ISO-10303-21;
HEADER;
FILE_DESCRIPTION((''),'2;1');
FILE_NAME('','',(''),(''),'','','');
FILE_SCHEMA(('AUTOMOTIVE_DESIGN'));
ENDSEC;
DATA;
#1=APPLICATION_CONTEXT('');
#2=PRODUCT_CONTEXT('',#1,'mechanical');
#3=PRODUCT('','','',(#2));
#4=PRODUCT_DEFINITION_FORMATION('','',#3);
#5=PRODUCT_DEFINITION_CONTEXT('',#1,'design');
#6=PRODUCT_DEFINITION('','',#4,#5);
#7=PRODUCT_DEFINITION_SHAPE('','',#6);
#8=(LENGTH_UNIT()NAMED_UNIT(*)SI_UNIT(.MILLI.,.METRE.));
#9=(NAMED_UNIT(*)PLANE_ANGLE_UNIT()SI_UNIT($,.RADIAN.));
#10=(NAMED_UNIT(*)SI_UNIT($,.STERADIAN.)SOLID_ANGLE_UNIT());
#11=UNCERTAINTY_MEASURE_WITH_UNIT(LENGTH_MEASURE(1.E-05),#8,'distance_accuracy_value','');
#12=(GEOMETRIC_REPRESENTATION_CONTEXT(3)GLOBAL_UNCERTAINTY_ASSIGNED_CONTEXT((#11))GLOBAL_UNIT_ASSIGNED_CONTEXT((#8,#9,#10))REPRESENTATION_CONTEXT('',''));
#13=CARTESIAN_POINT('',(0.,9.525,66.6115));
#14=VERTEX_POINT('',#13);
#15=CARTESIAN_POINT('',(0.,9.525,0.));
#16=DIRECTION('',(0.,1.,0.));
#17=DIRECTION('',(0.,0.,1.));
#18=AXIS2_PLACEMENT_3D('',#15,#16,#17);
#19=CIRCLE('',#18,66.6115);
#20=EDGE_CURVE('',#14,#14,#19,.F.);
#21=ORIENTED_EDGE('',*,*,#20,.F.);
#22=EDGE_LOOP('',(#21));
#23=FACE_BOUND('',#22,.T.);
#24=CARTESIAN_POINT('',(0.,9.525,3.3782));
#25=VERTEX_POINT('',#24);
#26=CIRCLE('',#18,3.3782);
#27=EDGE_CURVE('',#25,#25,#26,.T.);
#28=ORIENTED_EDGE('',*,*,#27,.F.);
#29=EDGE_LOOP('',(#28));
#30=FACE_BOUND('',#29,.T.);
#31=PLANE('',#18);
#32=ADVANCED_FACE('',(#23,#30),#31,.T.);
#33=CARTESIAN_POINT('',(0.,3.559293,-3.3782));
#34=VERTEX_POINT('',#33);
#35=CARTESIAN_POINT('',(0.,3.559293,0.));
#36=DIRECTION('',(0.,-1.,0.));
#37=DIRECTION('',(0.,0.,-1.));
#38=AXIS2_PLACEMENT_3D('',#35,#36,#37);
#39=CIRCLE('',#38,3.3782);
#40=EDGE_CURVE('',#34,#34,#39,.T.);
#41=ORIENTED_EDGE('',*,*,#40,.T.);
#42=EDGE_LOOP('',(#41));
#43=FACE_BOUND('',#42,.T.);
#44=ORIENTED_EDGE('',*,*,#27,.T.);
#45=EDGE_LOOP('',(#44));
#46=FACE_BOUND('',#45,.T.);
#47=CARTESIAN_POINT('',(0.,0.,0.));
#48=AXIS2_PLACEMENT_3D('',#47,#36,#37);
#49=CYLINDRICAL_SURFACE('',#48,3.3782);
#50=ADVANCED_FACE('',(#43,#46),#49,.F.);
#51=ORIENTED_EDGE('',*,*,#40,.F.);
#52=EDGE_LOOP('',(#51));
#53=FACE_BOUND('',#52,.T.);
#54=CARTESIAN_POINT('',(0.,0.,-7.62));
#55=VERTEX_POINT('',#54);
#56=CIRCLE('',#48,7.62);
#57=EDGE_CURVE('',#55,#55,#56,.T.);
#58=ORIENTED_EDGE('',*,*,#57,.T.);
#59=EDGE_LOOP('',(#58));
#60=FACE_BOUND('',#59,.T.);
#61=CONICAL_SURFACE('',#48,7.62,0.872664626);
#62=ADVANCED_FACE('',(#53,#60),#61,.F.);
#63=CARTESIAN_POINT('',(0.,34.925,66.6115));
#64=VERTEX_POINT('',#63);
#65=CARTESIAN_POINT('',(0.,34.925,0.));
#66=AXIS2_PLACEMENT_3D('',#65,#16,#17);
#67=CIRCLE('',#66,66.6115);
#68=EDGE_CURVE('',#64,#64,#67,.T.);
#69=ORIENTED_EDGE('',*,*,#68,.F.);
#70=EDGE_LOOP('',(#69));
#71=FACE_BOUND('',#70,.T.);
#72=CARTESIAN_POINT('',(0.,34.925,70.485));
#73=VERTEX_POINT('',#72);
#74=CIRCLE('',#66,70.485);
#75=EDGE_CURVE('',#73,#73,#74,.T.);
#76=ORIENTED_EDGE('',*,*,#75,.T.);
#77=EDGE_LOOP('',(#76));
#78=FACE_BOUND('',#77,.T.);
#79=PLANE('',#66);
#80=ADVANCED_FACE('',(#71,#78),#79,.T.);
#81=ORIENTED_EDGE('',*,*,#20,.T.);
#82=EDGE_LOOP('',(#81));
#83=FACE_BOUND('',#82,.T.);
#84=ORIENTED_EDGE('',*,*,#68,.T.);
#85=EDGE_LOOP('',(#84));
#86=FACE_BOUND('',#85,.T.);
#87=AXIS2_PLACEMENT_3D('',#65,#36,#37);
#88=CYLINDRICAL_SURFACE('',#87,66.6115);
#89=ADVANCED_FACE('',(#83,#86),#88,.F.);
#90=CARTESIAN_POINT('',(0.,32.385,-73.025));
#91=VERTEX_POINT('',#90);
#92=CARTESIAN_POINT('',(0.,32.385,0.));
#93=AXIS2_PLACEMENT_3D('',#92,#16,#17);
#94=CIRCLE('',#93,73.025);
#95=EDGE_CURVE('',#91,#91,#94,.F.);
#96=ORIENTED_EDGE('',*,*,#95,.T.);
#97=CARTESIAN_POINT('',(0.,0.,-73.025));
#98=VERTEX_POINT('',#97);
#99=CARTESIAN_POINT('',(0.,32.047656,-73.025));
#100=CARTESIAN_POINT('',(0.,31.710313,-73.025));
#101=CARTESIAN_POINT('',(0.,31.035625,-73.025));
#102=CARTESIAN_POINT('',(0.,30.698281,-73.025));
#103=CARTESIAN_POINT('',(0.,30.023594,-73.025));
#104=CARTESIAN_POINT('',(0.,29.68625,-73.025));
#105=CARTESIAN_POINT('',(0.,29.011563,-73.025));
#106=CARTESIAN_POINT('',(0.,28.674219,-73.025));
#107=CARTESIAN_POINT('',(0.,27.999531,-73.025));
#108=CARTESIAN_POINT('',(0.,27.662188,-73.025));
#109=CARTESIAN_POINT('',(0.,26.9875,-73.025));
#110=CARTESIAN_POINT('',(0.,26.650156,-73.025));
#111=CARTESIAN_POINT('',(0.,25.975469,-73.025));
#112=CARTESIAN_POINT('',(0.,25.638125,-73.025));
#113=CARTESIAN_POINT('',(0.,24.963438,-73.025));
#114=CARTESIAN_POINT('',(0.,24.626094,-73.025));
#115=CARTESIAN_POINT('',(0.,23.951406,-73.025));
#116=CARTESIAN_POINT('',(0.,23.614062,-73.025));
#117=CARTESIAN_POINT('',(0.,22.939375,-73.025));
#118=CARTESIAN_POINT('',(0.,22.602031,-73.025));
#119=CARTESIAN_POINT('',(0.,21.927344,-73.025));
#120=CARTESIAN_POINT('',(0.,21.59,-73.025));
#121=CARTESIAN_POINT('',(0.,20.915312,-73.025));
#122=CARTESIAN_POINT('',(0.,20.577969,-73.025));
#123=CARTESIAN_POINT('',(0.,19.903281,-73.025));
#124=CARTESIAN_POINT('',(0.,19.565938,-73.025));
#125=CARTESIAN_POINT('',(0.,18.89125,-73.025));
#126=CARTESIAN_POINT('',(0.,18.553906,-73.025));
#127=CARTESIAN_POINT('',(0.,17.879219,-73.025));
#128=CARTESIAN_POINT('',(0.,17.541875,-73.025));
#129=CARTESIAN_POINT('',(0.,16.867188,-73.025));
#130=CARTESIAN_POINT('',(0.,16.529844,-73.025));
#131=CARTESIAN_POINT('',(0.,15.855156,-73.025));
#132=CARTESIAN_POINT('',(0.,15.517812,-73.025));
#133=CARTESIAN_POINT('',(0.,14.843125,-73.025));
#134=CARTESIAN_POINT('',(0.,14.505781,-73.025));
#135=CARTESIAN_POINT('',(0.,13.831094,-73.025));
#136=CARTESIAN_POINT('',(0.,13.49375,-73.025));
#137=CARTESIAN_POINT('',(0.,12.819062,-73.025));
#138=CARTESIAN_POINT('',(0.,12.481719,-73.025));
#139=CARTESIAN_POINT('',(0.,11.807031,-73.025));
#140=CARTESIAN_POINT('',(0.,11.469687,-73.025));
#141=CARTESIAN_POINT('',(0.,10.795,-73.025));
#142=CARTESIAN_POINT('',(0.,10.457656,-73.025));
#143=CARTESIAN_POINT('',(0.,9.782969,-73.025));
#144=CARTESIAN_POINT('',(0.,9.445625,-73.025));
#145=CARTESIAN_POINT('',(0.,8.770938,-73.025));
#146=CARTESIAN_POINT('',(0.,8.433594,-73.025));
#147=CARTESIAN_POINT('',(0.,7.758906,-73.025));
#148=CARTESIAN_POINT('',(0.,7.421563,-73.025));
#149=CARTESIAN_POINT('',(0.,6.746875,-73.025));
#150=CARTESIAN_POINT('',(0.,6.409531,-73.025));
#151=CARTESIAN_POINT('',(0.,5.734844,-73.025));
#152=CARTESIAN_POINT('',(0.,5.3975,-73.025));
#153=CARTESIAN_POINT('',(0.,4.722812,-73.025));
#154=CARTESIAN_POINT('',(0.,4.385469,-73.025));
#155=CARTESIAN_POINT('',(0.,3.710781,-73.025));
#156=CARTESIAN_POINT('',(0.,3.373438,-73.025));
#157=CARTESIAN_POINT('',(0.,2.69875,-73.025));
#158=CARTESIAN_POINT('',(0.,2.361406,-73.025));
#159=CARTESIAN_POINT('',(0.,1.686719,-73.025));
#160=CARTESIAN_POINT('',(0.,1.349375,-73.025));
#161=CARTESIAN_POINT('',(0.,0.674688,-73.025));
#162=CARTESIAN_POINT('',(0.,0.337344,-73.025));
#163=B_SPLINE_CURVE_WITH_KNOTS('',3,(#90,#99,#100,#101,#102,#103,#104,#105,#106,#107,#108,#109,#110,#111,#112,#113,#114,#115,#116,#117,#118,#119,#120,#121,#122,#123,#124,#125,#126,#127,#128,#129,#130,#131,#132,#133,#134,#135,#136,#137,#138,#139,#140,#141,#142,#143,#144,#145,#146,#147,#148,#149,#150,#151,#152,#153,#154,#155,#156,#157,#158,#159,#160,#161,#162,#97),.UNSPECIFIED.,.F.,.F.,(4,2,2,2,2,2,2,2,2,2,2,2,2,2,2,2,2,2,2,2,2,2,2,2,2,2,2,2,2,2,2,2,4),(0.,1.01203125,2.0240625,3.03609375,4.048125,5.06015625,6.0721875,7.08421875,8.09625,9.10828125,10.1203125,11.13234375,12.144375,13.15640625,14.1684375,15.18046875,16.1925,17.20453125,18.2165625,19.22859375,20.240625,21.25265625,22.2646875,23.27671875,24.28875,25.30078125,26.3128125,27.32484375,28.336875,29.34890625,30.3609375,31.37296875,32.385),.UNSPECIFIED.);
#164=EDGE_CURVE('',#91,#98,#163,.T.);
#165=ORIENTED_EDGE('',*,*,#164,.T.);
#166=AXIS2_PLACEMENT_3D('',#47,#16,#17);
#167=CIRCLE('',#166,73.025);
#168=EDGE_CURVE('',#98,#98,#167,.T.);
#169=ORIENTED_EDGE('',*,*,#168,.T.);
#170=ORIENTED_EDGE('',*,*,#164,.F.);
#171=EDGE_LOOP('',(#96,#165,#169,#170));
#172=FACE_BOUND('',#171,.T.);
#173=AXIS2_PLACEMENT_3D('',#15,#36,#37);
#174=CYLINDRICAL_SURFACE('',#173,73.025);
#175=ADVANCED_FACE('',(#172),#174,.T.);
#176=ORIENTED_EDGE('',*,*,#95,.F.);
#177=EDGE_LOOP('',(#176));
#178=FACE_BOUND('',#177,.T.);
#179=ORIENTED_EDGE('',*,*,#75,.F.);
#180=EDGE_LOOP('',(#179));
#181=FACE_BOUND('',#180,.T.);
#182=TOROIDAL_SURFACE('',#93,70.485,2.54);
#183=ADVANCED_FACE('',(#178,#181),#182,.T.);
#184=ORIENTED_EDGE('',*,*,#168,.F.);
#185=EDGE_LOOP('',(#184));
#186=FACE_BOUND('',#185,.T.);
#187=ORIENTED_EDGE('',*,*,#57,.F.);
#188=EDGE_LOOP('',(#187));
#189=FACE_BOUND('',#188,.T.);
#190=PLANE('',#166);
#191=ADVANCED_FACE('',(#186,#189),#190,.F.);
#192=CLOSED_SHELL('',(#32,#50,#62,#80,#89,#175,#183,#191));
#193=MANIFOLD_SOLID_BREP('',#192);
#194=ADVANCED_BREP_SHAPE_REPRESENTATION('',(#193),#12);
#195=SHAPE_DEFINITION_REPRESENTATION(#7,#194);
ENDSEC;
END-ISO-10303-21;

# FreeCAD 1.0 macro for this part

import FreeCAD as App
import Part
import Sketcher

V = App.Vector
Q = App.Units.Quantity


def edges_at(feature, points):
    """Names of the edges that pass closest to the given points."""
    edges = feature.Shape.Edges
    near = lambda p: min(range(len(edges)), key=lambda i: edges[i].distToShape(Part.Vertex(*p))[0])
    return sorted({f"Edge{near(p) + 1}" for p in points})

doc = App.newDocument("Part")
body = doc.addObject("PartDesign::Body", "Body")

sketch1 = body.newObject("Sketcher::SketchObject", "Sketch")
sketch1.AttachmentSupport = (doc.getObject("XZ_Plane"), [""])
sketch1.MapMode = "FlatFace"
sketch1.addGeometry(Part.Circle(V(0, 0, 0), V(0, 0, 1), 73), False)
sketch1.addConstraint(Sketcher.Constraint("Coincident", 0, 3, -1, 1))
sketch1.addConstraint(Sketcher.Constraint("Diameter", 0, Q("5.75 in")))
pad1 = body.newObject("PartDesign::Pad", "Pad")
pad1.Profile = sketch1
pad1.Length = Q("0.375 in")
pad1.Reversed = True

sketch2 = body.newObject("Sketcher::SketchObject", "Sketch001")
sketch2.AttachmentSupport = (doc.getObject("XZ_Plane"), [""])
sketch2.MapMode = "FlatFace"
sketch2.AttachmentOffset = App.Placement(V(0, 0, -0.375 * 25.4), App.Rotation())
sketch2.addGeometry(Part.Circle(V(0, 0, 0), V(0, 0, 1), 73), False)
sketch2.addGeometry(Part.Circle(V(0, 0, 0), V(0, 0, 1), 67), False)
sketch2.addConstraint(Sketcher.Constraint("Coincident", 0, 3, -1, 1))
sketch2.addConstraint(Sketcher.Constraint("Coincident", 1, 3, -1, 1))
sketch2.addConstraint(Sketcher.Constraint("Diameter", 0, Q("5.75 in")))
sketch2.addConstraint(Sketcher.Constraint("Diameter", 1, Q("5.245 in")))
pad2 = body.newObject("PartDesign::Pad", "Pad001")
pad2.Profile = sketch2
pad2.Length = Q("1 in")
pad2.Reversed = True

sketch3 = body.newObject("Sketcher::SketchObject", "Sketch002")
sketch3.AttachmentSupport = (doc.getObject("XZ_Plane"), [""])
sketch3.MapMode = "FlatFace"
sketch3.addGeometry(Part.Circle(V(0, 0, 0), V(0, 0, 1), 3.4), False)
sketch3.addConstraint(Sketcher.Constraint("Coincident", 0, 3, -1, 1))
sketch3.addConstraint(Sketcher.Constraint("Diameter", 0, Q("0.266 in")))
doc.recompute()
hole = body.newObject("PartDesign::Hole", "Hole")
hole.Profile = sketch3
hole.ThreadType = "None"
hole.Diameter = Q("0.266 in")
hole.DepthType = "Dimension"
hole.Depth = Q("0.4 in")
hole.DrillPoint = "Angled"
hole.DrillPointAngle = 118
hole.HoleCutType = "Countersink"
hole.HoleCutDiameter = Q("0.6 in")
hole.HoleCutCountersinkAngle = 100
doc.recompute()

fillet = body.newObject("PartDesign::Fillet", "Fillet")
fillet.Base = (hole, edges_at(hole, [(0, 34.925, 73.025)]))
fillet.Radius = Q("0.1 in")

doc.recompute()
